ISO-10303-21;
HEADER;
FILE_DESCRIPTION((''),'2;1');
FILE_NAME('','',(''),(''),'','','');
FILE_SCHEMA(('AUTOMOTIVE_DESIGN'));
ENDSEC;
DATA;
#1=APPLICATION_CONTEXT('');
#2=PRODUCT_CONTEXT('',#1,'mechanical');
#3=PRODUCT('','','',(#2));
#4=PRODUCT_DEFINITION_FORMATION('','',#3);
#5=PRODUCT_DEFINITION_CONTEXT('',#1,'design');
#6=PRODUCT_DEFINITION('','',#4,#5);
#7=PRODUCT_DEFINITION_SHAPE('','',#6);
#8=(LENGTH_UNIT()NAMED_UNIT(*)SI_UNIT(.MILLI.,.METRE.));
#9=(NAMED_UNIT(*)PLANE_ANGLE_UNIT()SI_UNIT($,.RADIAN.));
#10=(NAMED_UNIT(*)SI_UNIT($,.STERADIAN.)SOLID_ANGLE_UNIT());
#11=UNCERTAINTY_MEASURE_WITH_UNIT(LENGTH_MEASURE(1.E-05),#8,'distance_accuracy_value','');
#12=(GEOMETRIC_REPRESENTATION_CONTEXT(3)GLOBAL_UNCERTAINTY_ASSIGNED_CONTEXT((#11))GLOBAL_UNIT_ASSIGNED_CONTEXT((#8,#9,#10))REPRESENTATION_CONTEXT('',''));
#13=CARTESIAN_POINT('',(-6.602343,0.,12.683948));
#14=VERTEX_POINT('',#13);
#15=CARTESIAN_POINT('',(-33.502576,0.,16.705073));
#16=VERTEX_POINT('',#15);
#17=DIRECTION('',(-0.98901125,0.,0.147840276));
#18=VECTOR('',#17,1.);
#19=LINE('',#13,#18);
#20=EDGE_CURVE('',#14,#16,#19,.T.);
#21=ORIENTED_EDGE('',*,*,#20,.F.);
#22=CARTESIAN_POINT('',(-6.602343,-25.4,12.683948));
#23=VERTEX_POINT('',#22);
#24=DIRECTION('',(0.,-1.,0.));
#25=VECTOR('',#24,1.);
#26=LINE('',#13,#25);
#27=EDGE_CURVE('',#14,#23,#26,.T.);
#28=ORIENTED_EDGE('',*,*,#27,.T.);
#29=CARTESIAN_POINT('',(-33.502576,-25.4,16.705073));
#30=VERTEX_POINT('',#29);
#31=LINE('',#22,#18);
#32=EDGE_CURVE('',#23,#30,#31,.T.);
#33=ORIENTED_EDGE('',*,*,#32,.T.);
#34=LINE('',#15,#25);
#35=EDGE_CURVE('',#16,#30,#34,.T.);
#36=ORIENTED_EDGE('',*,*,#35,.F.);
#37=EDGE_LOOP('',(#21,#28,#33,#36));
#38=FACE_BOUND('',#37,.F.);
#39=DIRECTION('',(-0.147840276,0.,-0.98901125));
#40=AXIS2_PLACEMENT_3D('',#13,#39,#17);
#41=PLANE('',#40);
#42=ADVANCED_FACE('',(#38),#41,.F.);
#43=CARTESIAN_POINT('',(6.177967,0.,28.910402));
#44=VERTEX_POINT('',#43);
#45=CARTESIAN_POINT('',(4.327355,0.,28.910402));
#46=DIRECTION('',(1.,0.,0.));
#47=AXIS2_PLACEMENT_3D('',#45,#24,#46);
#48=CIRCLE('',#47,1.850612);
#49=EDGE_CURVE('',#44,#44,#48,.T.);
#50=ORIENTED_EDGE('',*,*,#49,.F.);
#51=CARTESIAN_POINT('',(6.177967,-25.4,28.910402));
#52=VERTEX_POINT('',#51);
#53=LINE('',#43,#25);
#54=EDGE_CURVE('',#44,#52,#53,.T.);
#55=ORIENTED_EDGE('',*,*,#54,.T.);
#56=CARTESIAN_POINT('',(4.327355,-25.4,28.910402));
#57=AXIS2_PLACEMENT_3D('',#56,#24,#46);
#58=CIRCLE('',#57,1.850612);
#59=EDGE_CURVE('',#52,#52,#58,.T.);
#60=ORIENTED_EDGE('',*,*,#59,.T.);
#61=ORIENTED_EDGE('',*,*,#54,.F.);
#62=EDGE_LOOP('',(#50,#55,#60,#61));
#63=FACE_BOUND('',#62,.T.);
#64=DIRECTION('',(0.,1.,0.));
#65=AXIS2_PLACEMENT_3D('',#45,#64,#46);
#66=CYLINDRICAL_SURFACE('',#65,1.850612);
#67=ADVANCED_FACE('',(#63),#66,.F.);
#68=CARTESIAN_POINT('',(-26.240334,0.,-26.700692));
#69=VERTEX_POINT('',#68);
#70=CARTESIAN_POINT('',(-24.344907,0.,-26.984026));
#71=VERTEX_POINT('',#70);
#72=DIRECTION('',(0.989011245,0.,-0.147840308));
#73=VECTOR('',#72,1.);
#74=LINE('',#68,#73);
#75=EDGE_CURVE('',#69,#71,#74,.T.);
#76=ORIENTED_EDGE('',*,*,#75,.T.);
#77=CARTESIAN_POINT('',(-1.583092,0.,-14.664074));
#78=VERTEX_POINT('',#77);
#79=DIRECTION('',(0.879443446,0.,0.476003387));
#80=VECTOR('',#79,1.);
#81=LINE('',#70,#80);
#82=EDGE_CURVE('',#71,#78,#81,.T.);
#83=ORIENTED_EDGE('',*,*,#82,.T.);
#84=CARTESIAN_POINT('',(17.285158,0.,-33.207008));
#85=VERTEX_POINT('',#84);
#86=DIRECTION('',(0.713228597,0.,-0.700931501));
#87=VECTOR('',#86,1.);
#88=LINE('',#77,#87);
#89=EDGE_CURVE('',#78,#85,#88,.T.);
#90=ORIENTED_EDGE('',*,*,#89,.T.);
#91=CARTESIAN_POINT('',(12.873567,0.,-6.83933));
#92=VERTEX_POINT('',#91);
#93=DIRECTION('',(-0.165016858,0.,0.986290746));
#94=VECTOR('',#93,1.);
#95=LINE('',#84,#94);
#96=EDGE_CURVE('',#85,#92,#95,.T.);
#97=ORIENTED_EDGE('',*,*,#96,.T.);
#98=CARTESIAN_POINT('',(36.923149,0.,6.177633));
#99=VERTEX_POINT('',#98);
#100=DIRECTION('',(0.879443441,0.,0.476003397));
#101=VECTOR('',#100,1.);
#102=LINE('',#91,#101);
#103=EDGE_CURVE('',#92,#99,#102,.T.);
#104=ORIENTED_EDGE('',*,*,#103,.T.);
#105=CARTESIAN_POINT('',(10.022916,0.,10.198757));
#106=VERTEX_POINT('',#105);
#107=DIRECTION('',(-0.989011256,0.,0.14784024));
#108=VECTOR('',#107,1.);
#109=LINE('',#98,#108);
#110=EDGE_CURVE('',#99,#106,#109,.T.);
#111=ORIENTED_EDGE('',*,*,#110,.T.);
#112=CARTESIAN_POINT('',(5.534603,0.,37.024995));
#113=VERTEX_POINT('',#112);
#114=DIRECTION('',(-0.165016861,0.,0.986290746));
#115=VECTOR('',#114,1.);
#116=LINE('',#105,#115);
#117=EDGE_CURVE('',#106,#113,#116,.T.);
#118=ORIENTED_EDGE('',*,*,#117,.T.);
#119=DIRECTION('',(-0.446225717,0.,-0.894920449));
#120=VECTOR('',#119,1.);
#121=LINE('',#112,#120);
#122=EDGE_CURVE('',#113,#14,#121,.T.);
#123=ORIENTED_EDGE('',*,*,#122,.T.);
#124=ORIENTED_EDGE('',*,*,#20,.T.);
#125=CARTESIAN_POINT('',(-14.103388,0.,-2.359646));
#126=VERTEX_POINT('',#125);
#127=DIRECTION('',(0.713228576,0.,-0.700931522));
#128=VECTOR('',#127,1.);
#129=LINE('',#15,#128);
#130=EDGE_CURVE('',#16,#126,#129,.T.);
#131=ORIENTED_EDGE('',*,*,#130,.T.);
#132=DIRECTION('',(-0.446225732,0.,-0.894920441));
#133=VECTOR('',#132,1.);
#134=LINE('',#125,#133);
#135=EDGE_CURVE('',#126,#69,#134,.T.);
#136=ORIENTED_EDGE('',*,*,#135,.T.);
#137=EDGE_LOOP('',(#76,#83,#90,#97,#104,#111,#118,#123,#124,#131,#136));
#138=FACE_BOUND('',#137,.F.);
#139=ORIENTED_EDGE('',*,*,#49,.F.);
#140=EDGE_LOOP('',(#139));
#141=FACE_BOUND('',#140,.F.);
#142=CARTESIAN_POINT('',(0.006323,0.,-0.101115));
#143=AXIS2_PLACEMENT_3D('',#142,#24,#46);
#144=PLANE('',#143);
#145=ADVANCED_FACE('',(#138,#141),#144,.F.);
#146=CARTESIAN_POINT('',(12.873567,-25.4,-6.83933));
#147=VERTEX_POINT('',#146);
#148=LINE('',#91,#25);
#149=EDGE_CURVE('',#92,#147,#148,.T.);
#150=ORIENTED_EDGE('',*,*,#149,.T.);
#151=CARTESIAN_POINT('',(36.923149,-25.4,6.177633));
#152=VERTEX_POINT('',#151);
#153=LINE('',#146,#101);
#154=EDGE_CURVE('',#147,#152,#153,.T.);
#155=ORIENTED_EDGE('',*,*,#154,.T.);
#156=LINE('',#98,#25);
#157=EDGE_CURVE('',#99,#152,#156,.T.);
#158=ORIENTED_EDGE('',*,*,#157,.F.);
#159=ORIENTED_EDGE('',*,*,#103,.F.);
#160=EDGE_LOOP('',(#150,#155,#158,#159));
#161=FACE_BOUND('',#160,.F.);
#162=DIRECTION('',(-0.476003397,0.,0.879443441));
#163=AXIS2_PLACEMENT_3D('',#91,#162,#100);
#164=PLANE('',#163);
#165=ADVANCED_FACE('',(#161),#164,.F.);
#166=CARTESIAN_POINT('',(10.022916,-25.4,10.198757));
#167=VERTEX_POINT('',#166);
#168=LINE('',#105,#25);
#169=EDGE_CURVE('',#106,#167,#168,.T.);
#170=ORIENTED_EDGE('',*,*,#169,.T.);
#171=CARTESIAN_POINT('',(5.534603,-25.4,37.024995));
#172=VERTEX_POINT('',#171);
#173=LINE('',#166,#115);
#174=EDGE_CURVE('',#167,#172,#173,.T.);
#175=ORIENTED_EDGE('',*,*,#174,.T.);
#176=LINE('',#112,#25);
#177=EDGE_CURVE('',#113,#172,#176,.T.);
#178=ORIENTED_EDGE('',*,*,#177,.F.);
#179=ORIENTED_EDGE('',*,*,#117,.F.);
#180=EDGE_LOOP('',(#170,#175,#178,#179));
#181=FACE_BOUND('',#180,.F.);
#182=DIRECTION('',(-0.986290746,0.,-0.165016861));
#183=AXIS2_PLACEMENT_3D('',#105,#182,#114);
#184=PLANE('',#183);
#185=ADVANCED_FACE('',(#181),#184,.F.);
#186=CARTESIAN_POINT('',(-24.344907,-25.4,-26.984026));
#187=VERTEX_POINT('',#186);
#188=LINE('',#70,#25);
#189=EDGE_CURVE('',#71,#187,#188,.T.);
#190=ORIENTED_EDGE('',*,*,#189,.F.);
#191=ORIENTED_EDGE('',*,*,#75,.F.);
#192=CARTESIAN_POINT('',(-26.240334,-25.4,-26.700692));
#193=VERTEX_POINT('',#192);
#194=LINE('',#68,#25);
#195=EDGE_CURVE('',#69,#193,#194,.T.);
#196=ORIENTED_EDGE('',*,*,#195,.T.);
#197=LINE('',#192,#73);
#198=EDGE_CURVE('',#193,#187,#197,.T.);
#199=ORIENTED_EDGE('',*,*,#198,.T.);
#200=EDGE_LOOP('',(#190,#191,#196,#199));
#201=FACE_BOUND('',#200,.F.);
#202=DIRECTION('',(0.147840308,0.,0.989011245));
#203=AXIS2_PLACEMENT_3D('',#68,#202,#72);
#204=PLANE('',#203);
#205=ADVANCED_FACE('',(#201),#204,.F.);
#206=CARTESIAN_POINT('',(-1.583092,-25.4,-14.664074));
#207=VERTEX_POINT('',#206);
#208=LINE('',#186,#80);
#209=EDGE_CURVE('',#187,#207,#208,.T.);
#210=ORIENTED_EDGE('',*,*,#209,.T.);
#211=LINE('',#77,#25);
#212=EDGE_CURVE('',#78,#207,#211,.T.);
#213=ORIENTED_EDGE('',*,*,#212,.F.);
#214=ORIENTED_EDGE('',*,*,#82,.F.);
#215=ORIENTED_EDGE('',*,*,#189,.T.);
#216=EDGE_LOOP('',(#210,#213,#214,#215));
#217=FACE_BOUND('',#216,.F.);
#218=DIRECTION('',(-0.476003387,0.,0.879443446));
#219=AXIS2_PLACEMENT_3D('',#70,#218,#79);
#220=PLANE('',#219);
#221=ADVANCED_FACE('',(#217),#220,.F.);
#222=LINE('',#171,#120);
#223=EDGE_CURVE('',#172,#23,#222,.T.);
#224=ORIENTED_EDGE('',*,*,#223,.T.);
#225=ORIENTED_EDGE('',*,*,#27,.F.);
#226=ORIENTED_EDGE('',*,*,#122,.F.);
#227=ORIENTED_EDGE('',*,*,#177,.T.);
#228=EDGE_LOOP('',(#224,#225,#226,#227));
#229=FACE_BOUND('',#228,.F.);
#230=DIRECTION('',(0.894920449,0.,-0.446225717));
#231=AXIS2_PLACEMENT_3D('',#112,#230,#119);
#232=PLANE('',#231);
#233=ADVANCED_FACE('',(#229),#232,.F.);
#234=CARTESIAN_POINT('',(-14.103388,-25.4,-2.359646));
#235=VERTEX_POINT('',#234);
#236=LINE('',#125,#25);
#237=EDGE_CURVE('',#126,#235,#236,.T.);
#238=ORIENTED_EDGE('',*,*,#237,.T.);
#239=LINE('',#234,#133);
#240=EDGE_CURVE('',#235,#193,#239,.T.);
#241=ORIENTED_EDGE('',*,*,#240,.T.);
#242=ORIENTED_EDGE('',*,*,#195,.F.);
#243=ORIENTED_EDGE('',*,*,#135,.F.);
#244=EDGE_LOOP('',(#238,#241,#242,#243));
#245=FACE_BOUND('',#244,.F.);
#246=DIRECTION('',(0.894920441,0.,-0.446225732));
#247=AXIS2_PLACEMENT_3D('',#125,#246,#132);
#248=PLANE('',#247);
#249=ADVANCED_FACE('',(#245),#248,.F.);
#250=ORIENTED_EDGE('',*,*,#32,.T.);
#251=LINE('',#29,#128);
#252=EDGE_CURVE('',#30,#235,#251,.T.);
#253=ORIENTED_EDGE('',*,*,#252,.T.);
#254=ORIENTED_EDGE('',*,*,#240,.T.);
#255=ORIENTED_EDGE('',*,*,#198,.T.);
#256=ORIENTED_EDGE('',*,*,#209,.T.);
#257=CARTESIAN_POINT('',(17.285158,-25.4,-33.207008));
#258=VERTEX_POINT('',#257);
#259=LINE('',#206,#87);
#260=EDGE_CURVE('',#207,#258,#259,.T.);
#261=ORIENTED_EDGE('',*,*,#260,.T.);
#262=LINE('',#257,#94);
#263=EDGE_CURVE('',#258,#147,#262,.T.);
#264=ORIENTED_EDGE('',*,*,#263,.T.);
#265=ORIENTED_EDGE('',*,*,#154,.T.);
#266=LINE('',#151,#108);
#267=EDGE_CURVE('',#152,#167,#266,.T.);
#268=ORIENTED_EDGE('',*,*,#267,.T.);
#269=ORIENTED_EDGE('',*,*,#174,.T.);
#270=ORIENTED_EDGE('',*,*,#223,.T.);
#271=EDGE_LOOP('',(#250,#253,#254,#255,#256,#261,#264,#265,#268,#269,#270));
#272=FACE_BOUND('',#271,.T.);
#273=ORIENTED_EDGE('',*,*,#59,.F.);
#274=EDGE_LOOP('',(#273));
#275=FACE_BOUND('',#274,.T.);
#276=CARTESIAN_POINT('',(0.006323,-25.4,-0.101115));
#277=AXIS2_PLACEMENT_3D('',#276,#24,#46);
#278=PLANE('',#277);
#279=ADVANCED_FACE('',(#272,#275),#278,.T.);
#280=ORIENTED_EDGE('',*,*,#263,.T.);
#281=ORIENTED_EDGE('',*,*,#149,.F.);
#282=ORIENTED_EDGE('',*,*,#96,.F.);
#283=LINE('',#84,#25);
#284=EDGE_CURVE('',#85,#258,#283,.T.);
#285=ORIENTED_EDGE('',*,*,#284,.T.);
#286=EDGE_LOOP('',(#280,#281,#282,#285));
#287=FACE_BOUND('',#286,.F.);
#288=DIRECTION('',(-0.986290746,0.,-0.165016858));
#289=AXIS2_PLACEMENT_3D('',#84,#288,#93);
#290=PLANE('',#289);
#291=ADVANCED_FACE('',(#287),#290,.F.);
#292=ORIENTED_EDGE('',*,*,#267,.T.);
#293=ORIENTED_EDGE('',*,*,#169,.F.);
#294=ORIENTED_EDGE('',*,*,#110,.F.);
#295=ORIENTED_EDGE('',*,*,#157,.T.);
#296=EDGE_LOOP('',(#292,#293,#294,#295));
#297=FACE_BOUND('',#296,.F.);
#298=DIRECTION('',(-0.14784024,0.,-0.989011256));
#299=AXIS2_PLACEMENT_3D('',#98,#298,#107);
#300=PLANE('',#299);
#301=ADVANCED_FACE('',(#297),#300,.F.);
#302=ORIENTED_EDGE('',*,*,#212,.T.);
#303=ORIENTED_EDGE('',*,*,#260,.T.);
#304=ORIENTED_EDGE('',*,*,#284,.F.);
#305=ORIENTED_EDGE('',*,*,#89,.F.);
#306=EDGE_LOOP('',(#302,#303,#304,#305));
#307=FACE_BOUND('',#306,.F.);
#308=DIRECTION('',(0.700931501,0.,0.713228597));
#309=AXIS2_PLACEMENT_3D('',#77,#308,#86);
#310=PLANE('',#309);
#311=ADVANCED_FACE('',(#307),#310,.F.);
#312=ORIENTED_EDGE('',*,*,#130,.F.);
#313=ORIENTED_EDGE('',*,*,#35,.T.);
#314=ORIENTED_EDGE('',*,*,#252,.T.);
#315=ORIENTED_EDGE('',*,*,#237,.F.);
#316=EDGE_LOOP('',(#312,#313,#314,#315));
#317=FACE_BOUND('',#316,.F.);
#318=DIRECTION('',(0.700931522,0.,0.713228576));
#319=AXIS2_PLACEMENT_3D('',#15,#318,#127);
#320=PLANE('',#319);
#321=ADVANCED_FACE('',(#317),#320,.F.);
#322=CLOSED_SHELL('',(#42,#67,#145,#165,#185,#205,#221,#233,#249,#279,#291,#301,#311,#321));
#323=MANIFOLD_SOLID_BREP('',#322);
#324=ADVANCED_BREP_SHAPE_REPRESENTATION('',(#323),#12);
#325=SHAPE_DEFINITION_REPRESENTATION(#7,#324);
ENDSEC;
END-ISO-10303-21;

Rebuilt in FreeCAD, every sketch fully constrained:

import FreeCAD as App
import Part
import Sketcher
Q = App.Units.Quantity

doc = App.newDocument("Part")
body = doc.addObject("PartDesign::Body", "Body")

# Sketch on XZ plane
sketch1 = body.newObject("Sketcher::SketchObject", "Sketch")
sketch1.AttachmentSupport = (doc.getObject("XZ_Plane"), [""])
sketch1.MapMode = "FlatFace"
sketch1.addGeometry([
    Part.LineSegment(App.Vector(-26.240334, -26.700692, 0), App.Vector(-24.344907, -26.984026, 0)),  # 0
    Part.LineSegment(App.Vector(-24.344907, -26.984026, 0), App.Vector(-1.583092, -14.664074, 0)),  # 1
    Part.LineSegment(App.Vector(-1.583092, -14.664074, 0), App.Vector(17.285158, -33.207008, 0)),  # 2
    Part.LineSegment(App.Vector(17.285158, -33.207008, 0), App.Vector(12.873567, -6.83933, 0)),  # 3
    Part.LineSegment(App.Vector(12.873567, -6.83933, 0), App.Vector(36.923149, 6.177633, 0)),  # 4
    Part.LineSegment(App.Vector(36.923149, 6.177633, 0), App.Vector(10.022916, 10.198757, 0)),  # 5
    Part.LineSegment(App.Vector(10.022916, 10.198757, 0), App.Vector(5.534603, 37.024995, 0)),  # 6
    Part.LineSegment(App.Vector(5.534603, 37.024995, 0), App.Vector(-6.602343, 12.683948, 0)),  # 7
    Part.LineSegment(App.Vector(-6.602343, 12.683948, 0), App.Vector(-33.502576, 16.705073, 0)),  # 8
    Part.LineSegment(App.Vector(-33.502576, 16.705073, 0), App.Vector(-14.103388, -2.359646, 0)),  # 9
    Part.LineSegment(App.Vector(-14.103388, -2.359646, 0), App.Vector(-26.240334, -26.700692, 0)),  # 10
    Part.Circle(App.Vector(4.327355, 28.910402, 0), App.Vector(0, 0, 1), 1.850612),  # 11
], False)
sketch1.addConstraint([
    Sketcher.Constraint("Coincident", 0, 2, 1, 1),
    Sketcher.Constraint("Coincident", 1, 2, 2, 1),
    Sketcher.Constraint("Coincident", 2, 2, 3, 1),
    Sketcher.Constraint("Coincident", 3, 2, 4, 1),
    Sketcher.Constraint("Coincident", 4, 2, 5, 1),
    Sketcher.Constraint("Coincident", 5, 2, 6, 1),
    Sketcher.Constraint("Coincident", 6, 2, 7, 1),
    Sketcher.Constraint("Coincident", 7, 2, 8, 1),
    Sketcher.Constraint("Coincident", 8, 2, 9, 1),
    Sketcher.Constraint("Coincident", 9, 2, 10, 1),
    Sketcher.Constraint("Coincident", 10, 2, 0, 1),
    Sketcher.Constraint("Parallel", 1, 4),
    Sketcher.Constraint("Parallel", 0, 5),
    Sketcher.Constraint("Parallel", 3, 6),
    Sketcher.Constraint("Parallel", 5, 8),
    Sketcher.Constraint("Parallel", 2, 9),
    Sketcher.Constraint("Parallel", 7, 10),
    Sketcher.Constraint("Equal", 5, 6),
    Sketcher.Constraint("Equal", 6, 7),
    Sketcher.Constraint("Equal", 7, 8),
    Sketcher.Constraint("Equal", 8, 9),
    Sketcher.Constraint("Equal", 9, 10),
    Sketcher.Constraint("Diameter", 11, Q("3.701224 mm")),
    Sketcher.Constraint("DistanceY", 0, 2, 8, 2, Q("43.689099 mm")),
    Sketcher.Constraint("DistanceX", 10, 2, 3, 2, Q("39.113901 mm")),
    Sketcher.Constraint("Distance", 7, Q("27.199118 mm")),
    Sketcher.Constraint("DistanceX", 1, 2, -1, 1, Q("1.583092 mm")),
    Sketcher.Constraint("DistanceY", 2, 2, -1, 1, Q("33.207008 mm")),
    Sketcher.Constraint("DistanceY", 3, 2, -1, 1, Q("6.83933 mm")),
    Sketcher.Constraint("DistanceX", -1, 1, 4, 2, Q("36.923149 mm")),
    Sketcher.Constraint("DistanceX", 9, 2, -1, 1, Q("14.103388 mm")),
    Sketcher.Constraint("DistanceY", 10, 2, -1, 1, Q("26.700692 mm")),
    Sketcher.Constraint("DistanceX", 0, 2, 11, 3, Q("28.672262 mm")),
    Sketcher.Constraint("DistanceY", 0, 2, 11, 3, Q("55.894428 mm")),
    Sketcher.Constraint("DistanceX", 1, 2, 2, 2, Q("18.86825 mm")),
    Sketcher.Constraint("DistanceY", 2, 2, 11, 3, Q("62.11741 mm")),
])
pad1 = body.newObject("PartDesign::Pad", "Pad")
pad1.Profile = sketch1
pad1.Length = Q("1 in")

doc.recompute()
